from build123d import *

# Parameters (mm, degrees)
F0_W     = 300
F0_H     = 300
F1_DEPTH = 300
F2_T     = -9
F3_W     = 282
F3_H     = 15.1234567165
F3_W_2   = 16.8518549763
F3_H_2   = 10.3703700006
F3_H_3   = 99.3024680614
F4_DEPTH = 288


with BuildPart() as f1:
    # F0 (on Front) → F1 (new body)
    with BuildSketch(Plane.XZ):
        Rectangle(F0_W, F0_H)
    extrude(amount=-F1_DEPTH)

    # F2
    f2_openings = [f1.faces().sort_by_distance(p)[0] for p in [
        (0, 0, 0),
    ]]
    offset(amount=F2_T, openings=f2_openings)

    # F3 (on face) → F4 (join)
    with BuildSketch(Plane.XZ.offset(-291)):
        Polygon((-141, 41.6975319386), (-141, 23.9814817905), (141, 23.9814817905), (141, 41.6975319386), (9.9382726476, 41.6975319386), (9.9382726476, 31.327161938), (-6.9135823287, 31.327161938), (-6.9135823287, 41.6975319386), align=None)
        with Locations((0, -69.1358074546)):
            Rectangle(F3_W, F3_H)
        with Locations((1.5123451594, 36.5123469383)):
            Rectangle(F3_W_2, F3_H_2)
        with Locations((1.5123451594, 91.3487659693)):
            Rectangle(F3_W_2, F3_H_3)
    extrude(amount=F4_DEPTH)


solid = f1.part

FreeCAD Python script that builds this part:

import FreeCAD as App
import Part
import Sketcher

V = App.Vector
Q = App.Units.Quantity


def faces_at(feature, points):
    """Names of the faces that lie closest to the given points."""
    faces = feature.Shape.Faces
    near = lambda p: min(range(len(faces)), key=lambda i: faces[i].distToShape(Part.Vertex(*p))[0])
    return sorted({f"Face{near(p) + 1}" for p in points})

doc = App.newDocument("Part")
body = doc.addObject("PartDesign::Body", "Body")

# Sketch on XZ plane
sketch1 = doc.addObject("Sketcher::SketchObject", "Sketch")
body.addObject(sketch1)
sketch1.AttachmentSupport = (doc.XZ_Plane, [""])
sketch1.MapMode = "FlatFace"
sketch1.addGeometry([
    Part.LineSegment(V(-150, 150, 0), V(-150, -150, 0)),
    Part.LineSegment(V(-150, -150, 0), V(150, -150, 0)),
    Part.LineSegment(V(150, -150, 0), V(150, 150, 0)),
    Part.LineSegment(V(150, 150, 0), V(-150, 150, 0)),
], False)
sketch1.addConstraint([
    Sketcher.Constraint("Coincident", 0, 2, 1, 1),
    Sketcher.Constraint("Coincident", 1, 2, 2, 1),
    Sketcher.Constraint("Coincident", 2, 2, 3, 1),
    Sketcher.Constraint("Coincident", 3, 2, 0, 1),
    Sketcher.Constraint("Vertical", 0),
    Sketcher.Constraint("Horizontal", 1),
    Sketcher.Constraint("Vertical", 2),
    Sketcher.Constraint("Horizontal", 3),
    Sketcher.Constraint("Symmetric", 0, 2, 2, 2, -1, 1),
    Sketcher.Constraint("Equal", 3, 0),
    Sketcher.Constraint("DistanceX", 1, 1, 1, 2, Q("300 mm")),
])
pad1 = doc.addObject("PartDesign::Pad", "Pad")
body.addObject(pad1)
pad1.Profile = sketch1
pad1.Length = 300
pad1.Reversed = True
doc.recompute()

thickness = doc.addObject("PartDesign::Thickness", "Thickness")
body.addObject(thickness)
thickness.Base = (pad1, faces_at(pad1, [(0, 0, 0)]))
thickness.Value = 9
thickness.Reversed = True
thickness.Join = "Arc"

# Sketch on XZ plane
sketch2 = doc.addObject("Sketcher::SketchObject", "Sketch001")
body.addObject(sketch2)
sketch2.AttachmentSupport = (doc.XZ_Plane, [""])
sketch2.MapMode = "FlatFace"
sketch2.AttachmentOffset = App.Placement(V(0, 0, -291), App.Rotation())
sketch2.addGeometry([
    Part.LineSegment(V(-141, 42, 0), V(-141, 24, 0)),  # 0
    Part.LineSegment(V(-141, 24, 0), V(141, 24, 0)),  # 1
    Part.LineSegment(V(141, 24, 0), V(141, 42, 0)),  # 2
    Part.LineSegment(V(141, 42, 0), V(10, 42, 0)),  # 3
    Part.LineSegment(V(10, 42, 0), V(10, 141, 0)),  # 4
    Part.LineSegment(V(10, 141, 0), V(-7, 141, 0)),  # 5
    Part.LineSegment(V(-7, 141, 0), V(-7, 42, 0)),  # 6
    Part.LineSegment(V(-7, 42, 0), V(-141, 42, 0)),  # 7
    Part.LineSegment(V(-141, -62, 0), V(-141, -77, 0)),  # 8
    Part.LineSegment(V(-141, -77, 0), V(141, -77, 0)),  # 9
    Part.LineSegment(V(141, -77, 0), V(141, -62, 0)),  # 10
    Part.LineSegment(V(141, -62, 0), V(-141, -62, 0)),  # 11
], False)
sketch2.addConstraint([
    Sketcher.Constraint("Coincident", 0, 2, 1, 1),
    Sketcher.Constraint("Coincident", 1, 2, 2, 1),
    Sketcher.Constraint("Coincident", 2, 2, 3, 1),
    Sketcher.Constraint("Coincident", 3, 2, 4, 1),
    Sketcher.Constraint("Coincident", 4, 2, 5, 1),
    Sketcher.Constraint("Coincident", 5, 2, 6, 1),
    Sketcher.Constraint("Coincident", 6, 2, 7, 1),
    Sketcher.Constraint("Coincident", 7, 2, 0, 1),
    Sketcher.Constraint("Coincident", 8, 2, 9, 1),
    Sketcher.Constraint("Coincident", 9, 2, 10, 1),
    Sketcher.Constraint("Coincident", 10, 2, 11, 1),
    Sketcher.Constraint("Coincident", 11, 2, 8, 1),
    Sketcher.Constraint("Vertical", 0),
    Sketcher.Constraint("Horizontal", 1),
    Sketcher.Constraint("Vertical", 2),
    Sketcher.Constraint("Horizontal", 3),
    Sketcher.Constraint("Vertical", 4),
    Sketcher.Constraint("Horizontal", 5),
    Sketcher.Constraint("Vertical", 6),
    Sketcher.Constraint("Horizontal", 7),
    Sketcher.Constraint("Vertical", 8),
    Sketcher.Constraint("Horizontal", 9),
    Sketcher.Constraint("Vertical", 10),
    Sketcher.Constraint("Horizontal", 11),
    Sketcher.Constraint("Symmetric", 2, 2, 7, 2, -2),
    Sketcher.Constraint("Vertical", 7, 2, 8, 2),
    Sketcher.Constraint("Vertical", 2, 2, 9, 2),
    Sketcher.Constraint("DistanceX", 1, 1, 1, 2, Q("282 mm")),
    Sketcher.Constraint("DistanceY", -1, 1, 4, 2, Q("141 mm")),
    Sketcher.Constraint("DistanceY", 0, 2, 0, 1, Q("17.71605 mm")),
    Sketcher.Constraint("DistanceY", 4, 1, 4, 2, Q("99.302468 mm")),
    Sketcher.Constraint("DistanceX", 3, 2, 3, 1, Q("131.061727 mm")),
    Sketcher.Constraint("DistanceX", 5, 2, 5, 1, Q("16.851855 mm")),
    Sketcher.Constraint("DistanceY", 8, 2, 8, 1, Q("15.123457 mm")),
    Sketcher.Constraint("DistanceY", 10, 2, -1, 1, Q("61.574079 mm")),
])
pad2 = doc.addObject("PartDesign::Pad", "Pad001")
body.addObject(pad2)
pad2.Profile = sketch2
pad2.Length = 288

doc.recompute()
